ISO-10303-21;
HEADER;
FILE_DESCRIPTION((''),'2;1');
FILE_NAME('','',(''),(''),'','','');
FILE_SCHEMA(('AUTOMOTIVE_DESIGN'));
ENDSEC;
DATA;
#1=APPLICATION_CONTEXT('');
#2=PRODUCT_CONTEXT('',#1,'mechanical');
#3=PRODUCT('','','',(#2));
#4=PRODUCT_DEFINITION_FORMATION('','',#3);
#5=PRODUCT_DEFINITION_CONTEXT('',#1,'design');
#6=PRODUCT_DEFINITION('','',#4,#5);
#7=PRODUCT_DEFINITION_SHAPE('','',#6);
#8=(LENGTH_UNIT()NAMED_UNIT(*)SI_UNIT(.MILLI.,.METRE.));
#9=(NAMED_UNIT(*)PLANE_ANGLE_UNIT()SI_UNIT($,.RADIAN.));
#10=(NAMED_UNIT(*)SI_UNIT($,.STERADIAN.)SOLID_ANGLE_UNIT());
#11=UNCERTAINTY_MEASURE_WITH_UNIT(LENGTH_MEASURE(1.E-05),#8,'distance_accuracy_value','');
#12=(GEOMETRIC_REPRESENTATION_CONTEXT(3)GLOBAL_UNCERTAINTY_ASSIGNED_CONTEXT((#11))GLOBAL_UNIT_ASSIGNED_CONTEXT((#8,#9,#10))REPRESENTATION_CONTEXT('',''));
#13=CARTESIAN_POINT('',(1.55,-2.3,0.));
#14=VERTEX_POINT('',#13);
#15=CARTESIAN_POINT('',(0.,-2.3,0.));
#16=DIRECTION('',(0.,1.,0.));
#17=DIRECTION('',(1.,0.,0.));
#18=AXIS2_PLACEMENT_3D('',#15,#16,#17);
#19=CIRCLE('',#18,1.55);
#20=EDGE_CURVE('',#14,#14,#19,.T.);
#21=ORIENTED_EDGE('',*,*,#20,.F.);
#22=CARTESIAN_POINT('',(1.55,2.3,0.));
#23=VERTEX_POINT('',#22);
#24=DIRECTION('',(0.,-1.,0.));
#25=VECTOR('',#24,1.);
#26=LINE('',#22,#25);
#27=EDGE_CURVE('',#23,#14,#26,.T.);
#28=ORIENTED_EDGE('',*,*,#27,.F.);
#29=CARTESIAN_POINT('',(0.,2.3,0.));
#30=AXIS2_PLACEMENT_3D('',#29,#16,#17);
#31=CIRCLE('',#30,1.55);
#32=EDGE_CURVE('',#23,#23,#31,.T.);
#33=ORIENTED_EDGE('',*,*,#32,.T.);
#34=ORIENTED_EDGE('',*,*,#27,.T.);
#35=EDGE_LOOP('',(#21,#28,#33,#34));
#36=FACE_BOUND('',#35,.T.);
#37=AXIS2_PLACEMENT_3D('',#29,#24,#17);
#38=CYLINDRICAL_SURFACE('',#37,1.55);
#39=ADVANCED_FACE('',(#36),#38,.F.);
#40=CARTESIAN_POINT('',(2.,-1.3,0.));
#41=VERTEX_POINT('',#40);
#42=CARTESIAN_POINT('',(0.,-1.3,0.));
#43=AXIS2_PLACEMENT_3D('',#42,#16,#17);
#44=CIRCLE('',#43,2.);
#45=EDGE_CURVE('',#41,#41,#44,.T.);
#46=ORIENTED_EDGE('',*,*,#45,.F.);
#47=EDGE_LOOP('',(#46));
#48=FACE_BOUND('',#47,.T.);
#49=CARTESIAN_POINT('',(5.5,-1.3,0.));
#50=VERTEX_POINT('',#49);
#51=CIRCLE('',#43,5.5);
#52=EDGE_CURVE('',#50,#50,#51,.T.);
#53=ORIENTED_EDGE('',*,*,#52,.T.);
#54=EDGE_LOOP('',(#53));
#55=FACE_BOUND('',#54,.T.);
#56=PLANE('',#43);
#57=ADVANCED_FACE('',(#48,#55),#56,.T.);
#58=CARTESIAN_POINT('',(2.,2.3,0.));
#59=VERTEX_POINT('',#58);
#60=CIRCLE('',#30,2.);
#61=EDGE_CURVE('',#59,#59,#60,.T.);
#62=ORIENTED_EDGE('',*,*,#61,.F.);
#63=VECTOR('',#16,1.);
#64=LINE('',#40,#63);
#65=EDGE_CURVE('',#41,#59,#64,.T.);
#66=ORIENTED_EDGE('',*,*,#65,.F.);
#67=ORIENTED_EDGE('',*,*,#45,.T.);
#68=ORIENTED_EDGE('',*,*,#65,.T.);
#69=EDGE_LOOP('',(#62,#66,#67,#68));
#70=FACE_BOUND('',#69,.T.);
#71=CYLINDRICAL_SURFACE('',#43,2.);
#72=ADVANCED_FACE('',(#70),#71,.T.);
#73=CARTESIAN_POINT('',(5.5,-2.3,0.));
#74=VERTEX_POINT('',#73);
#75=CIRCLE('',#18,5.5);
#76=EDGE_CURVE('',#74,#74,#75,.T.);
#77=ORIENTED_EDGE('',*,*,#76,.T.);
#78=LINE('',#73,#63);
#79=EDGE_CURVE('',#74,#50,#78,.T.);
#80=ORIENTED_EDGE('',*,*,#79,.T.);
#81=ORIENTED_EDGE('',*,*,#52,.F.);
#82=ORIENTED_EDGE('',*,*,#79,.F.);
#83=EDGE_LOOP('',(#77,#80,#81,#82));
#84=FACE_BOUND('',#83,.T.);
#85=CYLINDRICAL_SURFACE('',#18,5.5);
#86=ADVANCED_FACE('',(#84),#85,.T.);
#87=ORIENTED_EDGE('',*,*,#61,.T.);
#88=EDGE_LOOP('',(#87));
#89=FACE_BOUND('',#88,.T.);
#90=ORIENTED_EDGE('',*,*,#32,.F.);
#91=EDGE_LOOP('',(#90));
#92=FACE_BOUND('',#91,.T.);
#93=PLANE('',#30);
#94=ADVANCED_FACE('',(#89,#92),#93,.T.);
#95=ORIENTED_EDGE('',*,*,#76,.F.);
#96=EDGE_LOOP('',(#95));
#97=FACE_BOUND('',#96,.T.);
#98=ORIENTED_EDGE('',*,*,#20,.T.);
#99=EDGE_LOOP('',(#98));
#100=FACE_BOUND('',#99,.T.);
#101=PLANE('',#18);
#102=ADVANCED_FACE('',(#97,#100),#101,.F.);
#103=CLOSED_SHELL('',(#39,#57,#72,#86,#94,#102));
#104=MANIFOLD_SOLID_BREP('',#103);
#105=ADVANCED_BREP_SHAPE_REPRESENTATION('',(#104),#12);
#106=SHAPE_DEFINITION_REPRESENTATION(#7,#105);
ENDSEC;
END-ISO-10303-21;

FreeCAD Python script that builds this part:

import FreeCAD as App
import Part
import Sketcher

V = App.Vector

doc = App.newDocument("Part")
body = doc.addObject("PartDesign::Body", "Body")

sketch1 = body.newObject("Sketcher::SketchObject", "Sketch")
sketch1.AttachmentSupport = (doc.getObject("XY_Plane"), [""])
sketch1.MapMode = "FlatFace"
sketch1.addGeometry([
    Part.LineSegment(V(2, 2.3, 0), V(1.55, 2.3, 0)),
    Part.LineSegment(V(1.55, 2.3, 0), V(1.55, -2.3, 0)),
    Part.LineSegment(V(1.55, -2.3, 0), V(5.5, -2.3, 0)),
    Part.LineSegment(V(5.5, -2.3, 0), V(5.5, -1.3, 0)),
    Part.LineSegment(V(5.5, -1.3, 0), V(2, -1.3, 0)),
    Part.LineSegment(V(2, -1.3, 0), V(2, 2.3, 0)),
], False)
sketch1.addConstraint([
    Sketcher.Constraint("Coincident", 0, 2, 1, 1),
    Sketcher.Constraint("Coincident", 1, 2, 2, 1),
    Sketcher.Constraint("Coincident", 2, 2, 3, 1),
    Sketcher.Constraint("Coincident", 3, 2, 4, 1),
    Sketcher.Constraint("Coincident", 4, 2, 5, 1),
    Sketcher.Constraint("Coincident", 5, 2, 0, 1),
    Sketcher.Constraint("Horizontal", 0),
    Sketcher.Constraint("Vertical", 1),
    Sketcher.Constraint("Horizontal", 2),
    Sketcher.Constraint("Vertical", 3),
    Sketcher.Constraint("Horizontal", 4),
    Sketcher.Constraint("Vertical", 5),
    Sketcher.Constraint("DistanceY", 3, 1, 3, 2, 1.0),
    Sketcher.Constraint("DistanceY", 5, 1, 5, 2, 3.6),
    Sketcher.Constraint("DistanceX", -1, 1, 4, 2, 2.0),
    Sketcher.Constraint("DistanceX", -1, 1, 2, 2, 5.5),
    Sketcher.Constraint("DistanceX", -1, 1, 0, 2, 1.55),
    Sketcher.Constraint("DistanceY", -1, 1, 0, 2, 2.3),
])
revolution = body.newObject("PartDesign::Revolution", "Revolution")
revolution.Profile = sketch1
revolution.ReferenceAxis = (sketch1, ["V_Axis"])
revolution.Angle = 360

doc.recompute()
